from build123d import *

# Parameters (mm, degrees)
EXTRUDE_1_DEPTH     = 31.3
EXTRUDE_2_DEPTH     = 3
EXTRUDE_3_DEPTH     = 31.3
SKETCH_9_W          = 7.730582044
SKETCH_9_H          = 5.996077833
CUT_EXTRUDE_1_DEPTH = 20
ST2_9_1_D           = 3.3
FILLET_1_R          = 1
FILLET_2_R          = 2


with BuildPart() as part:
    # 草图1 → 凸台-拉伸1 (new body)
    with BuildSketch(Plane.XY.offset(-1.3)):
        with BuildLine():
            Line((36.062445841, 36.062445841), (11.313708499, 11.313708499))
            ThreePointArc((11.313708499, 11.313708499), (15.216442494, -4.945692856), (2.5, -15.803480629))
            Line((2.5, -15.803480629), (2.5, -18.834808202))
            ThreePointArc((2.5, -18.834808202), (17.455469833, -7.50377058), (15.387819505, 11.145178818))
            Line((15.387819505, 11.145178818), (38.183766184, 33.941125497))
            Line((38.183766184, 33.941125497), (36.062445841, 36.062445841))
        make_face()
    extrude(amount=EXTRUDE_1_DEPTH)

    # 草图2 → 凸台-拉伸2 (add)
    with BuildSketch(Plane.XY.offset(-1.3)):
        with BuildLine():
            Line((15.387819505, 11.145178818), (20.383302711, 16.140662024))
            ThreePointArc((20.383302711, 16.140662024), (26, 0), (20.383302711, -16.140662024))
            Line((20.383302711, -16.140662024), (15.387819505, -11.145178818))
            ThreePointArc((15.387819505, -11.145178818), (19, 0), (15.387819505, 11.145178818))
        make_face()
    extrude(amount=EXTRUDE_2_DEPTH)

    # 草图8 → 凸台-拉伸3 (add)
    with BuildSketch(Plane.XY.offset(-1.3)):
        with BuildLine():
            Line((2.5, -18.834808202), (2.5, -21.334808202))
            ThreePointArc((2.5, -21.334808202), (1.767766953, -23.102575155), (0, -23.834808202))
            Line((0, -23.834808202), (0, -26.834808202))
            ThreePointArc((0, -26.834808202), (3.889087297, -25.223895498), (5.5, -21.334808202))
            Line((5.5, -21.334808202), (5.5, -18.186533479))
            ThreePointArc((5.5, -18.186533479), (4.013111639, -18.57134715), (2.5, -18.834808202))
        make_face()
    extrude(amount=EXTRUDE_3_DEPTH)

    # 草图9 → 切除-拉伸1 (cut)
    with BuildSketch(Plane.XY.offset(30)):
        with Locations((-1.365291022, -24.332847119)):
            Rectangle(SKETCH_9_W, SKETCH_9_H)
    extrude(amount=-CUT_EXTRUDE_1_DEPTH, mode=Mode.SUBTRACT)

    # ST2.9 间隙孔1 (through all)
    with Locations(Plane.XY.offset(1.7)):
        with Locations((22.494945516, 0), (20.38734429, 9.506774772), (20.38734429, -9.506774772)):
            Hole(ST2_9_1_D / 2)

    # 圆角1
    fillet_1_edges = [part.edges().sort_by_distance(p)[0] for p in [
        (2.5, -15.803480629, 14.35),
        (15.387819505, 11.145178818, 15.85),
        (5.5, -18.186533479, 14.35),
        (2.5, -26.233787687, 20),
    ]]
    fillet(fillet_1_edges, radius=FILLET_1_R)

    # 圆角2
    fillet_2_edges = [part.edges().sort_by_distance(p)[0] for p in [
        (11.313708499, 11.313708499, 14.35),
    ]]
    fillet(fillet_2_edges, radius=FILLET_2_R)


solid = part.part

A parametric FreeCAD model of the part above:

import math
import FreeCAD as App
import Part
import Sketcher

V = App.Vector
Q = App.Units.Quantity


def edges_at(feature, points):
    """Names of the edges that pass closest to the given points."""
    edges = feature.Shape.Edges
    near = lambda p: min(range(len(edges)), key=lambda i: edges[i].distToShape(Part.Vertex(*p))[0])
    return sorted({f"Edge{near(p) + 1}" for p in points})


def add_polygon(sketch, points):
    """Adds a closed chain of lines whose ends are joined by coincident constraints."""
    first, n = sketch.GeometryCount, len(points)
    for a, b in zip(points, points[1:] + points[:1]):
        sketch.addGeometry(Part.LineSegment(App.Vector(*a, 0), App.Vector(*b, 0)), False)
    for i in range(n):
        sketch.addConstraint(Sketcher.Constraint("Coincident", first + i, 2, first + (i + 1) % n, 1))

doc = App.newDocument("Part")
body = doc.addObject("PartDesign::Body", "Body")

# Sketch on XY plane
sketch1 = doc.addObject("Sketcher::SketchObject", "Sketch")
body.addObject(sketch1)
sketch1.AttachmentSupport = (doc.XY_Plane, [""])
sketch1.MapMode = "FlatFace"
sketch1.AttachmentOffset = App.Placement(V(0, 0, -1.3), App.Rotation())
sketch1.addGeometry([
    Part.LineSegment(V(36.062446, 36.062446, 0), V(11.313708, 11.313708, 0)),  # 0
    Part.ArcOfCircle(Part.Circle(V(0, 0, 0), V(0, 0, 1), 16), math.radians(-81.010701), math.radians(45)),  # 1
    Part.LineSegment(V(2.5, -15.803481, 0), V(2.5, -18.834808, 0)),  # 2
    Part.ArcOfCircle(Part.Circle(V(0, 0, 0), V(0, 0, 1), 19), math.radians(-82.439157), math.radians(35.91528)),  # 3
    Part.LineSegment(V(15.38782, 11.145179, 0), V(38.183766, 33.941125, 0)),  # 4
    Part.LineSegment(V(38.183766, 33.941125, 0), V(36.062446, 36.062446, 0)),  # 5
], False)
sketch1.addConstraint([
    Sketcher.Constraint("Coincident", 0, 2, 1, 2),
    Sketcher.Constraint("Coincident", 1, 1, 2, 1),
    Sketcher.Constraint("Coincident", 2, 2, 3, 1),
    Sketcher.Constraint("Coincident", 3, 2, 4, 1),
    Sketcher.Constraint("Coincident", 4, 2, 5, 1),
    Sketcher.Constraint("Coincident", 5, 2, 0, 1),
    Sketcher.Constraint("Vertical", 2),
    Sketcher.Constraint("Coincident", 1, 3, -1, 1),
    Sketcher.Constraint("Coincident", 3, 3, -1, 1),
    Sketcher.Constraint("Parallel", 0, 4),
    Sketcher.Constraint("Perpendicular", 4, 5),
    Sketcher.Constraint("Radius", 1, Q("16 mm")),
    Sketcher.Constraint("Radius", 3, Q("19 mm")),
    Sketcher.Constraint("Angle", 0, Q("-135 deg")),
    Sketcher.Constraint("Distance", 0, Q("35 mm")),
    Sketcher.Constraint("Distance", 5, Q("3 mm")),
    Sketcher.Constraint("DistanceX", -1, 1, 1, 1, Q("2.5 mm")),
    Sketcher.Constraint("DistanceX", -1, 1, 0, 2, Q("11.313708 mm")),
])
pad1 = doc.addObject("PartDesign::Pad", "Pad")
body.addObject(pad1)
pad1.Profile = sketch1
pad1.Length = 31.3

# Sketch on XY plane
sketch2 = doc.addObject("Sketcher::SketchObject", "Sketch001")
body.addObject(sketch2)
sketch2.AttachmentSupport = (doc.XY_Plane, [""])
sketch2.MapMode = "FlatFace"
sketch2.AttachmentOffset = App.Placement(V(0, 0, -1.3), App.Rotation())
sketch2.addGeometry([
    Part.LineSegment(V(20.383303, 16.140662, 0), V(15.38782, 11.145179, 0)),
    Part.ArcOfCircle(Part.Circle(V(0, 0, 0), V(0, 0, 1), 19), math.radians(-35.91528), math.radians(35.91528)),
    Part.LineSegment(V(15.38782, -11.145179, 0), V(20.383303, -16.140662, 0)),
    Part.ArcOfCircle(Part.Circle(V(0, 0, 0), V(0, 0, 1), 26), math.radians(-38.37419), math.radians(38.37419)),
], False)
sketch2.addConstraint([
    Sketcher.Constraint("Coincident", 0, 2, 1, 2),
    Sketcher.Constraint("Coincident", 1, 1, 2, 1),
    Sketcher.Constraint("Coincident", 2, 2, 3, 1),
    Sketcher.Constraint("Coincident", 3, 2, 0, 1),
    Sketcher.Constraint("Coincident", 1, 3, -1, 1),
    Sketcher.Constraint("Coincident", 3, 3, -1, 1),
    Sketcher.Constraint("Perpendicular", 0, 2),
    Sketcher.Constraint("Vertical", 0, 2, 1, 1),
    Sketcher.Constraint("Vertical", 2, 2, 3, 2),
    Sketcher.Constraint("Radius", 1, Q("19 mm")),
    Sketcher.Constraint("Radius", 3, Q("26 mm")),
    Sketcher.Constraint("Distance", 0, Q("7.06468 mm")),
])
pad2 = doc.addObject("PartDesign::Pad", "Pad001")
body.addObject(pad2)
pad2.Profile = sketch2
pad2.Length = 3

# Sketch on XY plane
sketch3 = doc.addObject("Sketcher::SketchObject", "Sketch002")
body.addObject(sketch3)
sketch3.AttachmentSupport = (doc.XY_Plane, [""])
sketch3.MapMode = "FlatFace"
sketch3.AttachmentOffset = App.Placement(V(0, 0, -1.3), App.Rotation())
sketch3.addGeometry([
    Part.LineSegment(V(2.5, -18.834808, 0), V(2.5, -21.334808, 0)),  # 0
    Part.ArcOfCircle(Part.Circle(V(0, -21.334808, 0), V(0, 0, 1), 2.5), math.radians(-90), math.radians(0)),  # 1
    Part.LineSegment(V(0, -23.834808, 0), V(0, -26.834808, 0)),  # 2
    Part.ArcOfCircle(Part.Circle(V(0, -21.334808, 0), V(0, 0, 1), 5.5), math.radians(-90), math.radians(0)),  # 3
    Part.LineSegment(V(5.5, -21.334808, 0), V(5.5, -18.186533, 0)),  # 4
    Part.ArcOfCircle(Part.Circle(V(0, 0, 0), V(0, 0, 1), 19), math.radians(-82.439157), math.radians(-73.173551)),  # 5
], False)
sketch3.addConstraint([
    Sketcher.Constraint("Tangent", 0, 2, 1, 2),
    Sketcher.Constraint("Coincident", 1, 1, 2, 1),
    Sketcher.Constraint("Coincident", 2, 2, 3, 1),
    Sketcher.Constraint("Tangent", 3, 2, 4, 1),
    Sketcher.Constraint("Coincident", 4, 2, 5, 2),
    Sketcher.Constraint("Coincident", 5, 1, 0, 1),
    Sketcher.Constraint("Vertical", 0),
    Sketcher.Constraint("Vertical", 2),
    Sketcher.Constraint("Vertical", 4),
    Sketcher.Constraint("Coincident", 5, 3, -1, 1),
    Sketcher.Constraint("Coincident", 3, 3, 1, 3),
    Sketcher.Constraint("PointOnObject", 1, 3, -2),
    Sketcher.Constraint("PointOnObject", 1, 1, -2),
    Sketcher.Constraint("Radius", 5, Q("19 mm")),
    Sketcher.Constraint("Radius", 1, Q("2.5 mm")),
    Sketcher.Constraint("Radius", 3, Q("5.5 mm")),
    Sketcher.Constraint("DistanceY", 0, 2, 0, 1, Q("2.5 mm")),
])
pad3 = doc.addObject("PartDesign::Pad", "Pad002")
body.addObject(pad3)
pad3.Profile = sketch3
pad3.Length = 31.3

# Sketch on XY plane
sketch4 = doc.addObject("Sketcher::SketchObject", "Sketch003")
body.addObject(sketch4)
sketch4.AttachmentSupport = (doc.XY_Plane, [""])
sketch4.MapMode = "FlatFace"
sketch4.AttachmentOffset = App.Placement(V(0, 0, 30), App.Rotation())
add_polygon(sketch4, [(-5.230582, -21.334808), (-5.230582, -27.330886), (2.5, -27.330886), (2.5, -21.334808)])  # lines 0-3
sketch4.addConstraint([
    Sketcher.Constraint("Vertical", 0),
    Sketcher.Constraint("Horizontal", 1),
    Sketcher.Constraint("Vertical", 2),
    Sketcher.Constraint("Horizontal", 3),
    Sketcher.Constraint("DistanceX", -1, 1, 1, 2, Q("2.5 mm")),
    Sketcher.Constraint("DistanceX", 1, 1, 1, 2, Q("7.730582 mm")),
    Sketcher.Constraint("DistanceY", 0, 2, 0, 1, Q("5.996078 mm")),
    Sketcher.Constraint("DistanceY", 2, 2, -1, 1, Q("21.334808 mm")),
])
pocket1 = doc.addObject("PartDesign::Pocket", "Pocket")
body.addObject(pocket1)
pocket1.Profile = sketch4
pocket1.Length = 20

# Sketch on XY plane
sketch5 = doc.addObject("Sketcher::SketchObject", "Sketch004")
body.addObject(sketch5)
sketch5.AttachmentSupport = (doc.XY_Plane, [""])
sketch5.MapMode = "FlatFace"
sketch5.AttachmentOffset = App.Placement(V(0, 0, 1.7), App.Rotation())
sketch5.addGeometry([
    Part.Circle(V(22.494946, 0, 0), V(0, 0, 1), 1.65),
    Part.Circle(V(20.387344, 9.506775, 0), V(0, 0, 1), 1.65),
    Part.Circle(V(20.387344, -9.506775, 0), V(0, 0, 1), 1.65),
], False)
sketch5.addConstraint([
    Sketcher.Constraint("Equal", 0, 1),
    Sketcher.Constraint("Equal", 1, 2),
    Sketcher.Constraint("Symmetric", 1, 3, 2, 3, -1),
    Sketcher.Constraint("PointOnObject", 0, 3, -1),
    Sketcher.Constraint("Diameter", 0, Q("3.3 mm")),
    Sketcher.Constraint("DistanceX", 1, 3, 0, 3, Q("2.107601 mm")),
    Sketcher.Constraint("DistanceY", 2, 3, 1, 3, Q("19.01355 mm")),
    Sketcher.Constraint("DistanceX", -1, 1, 0, 3, Q("22.494946 mm")),
])
doc.recompute()
hole = doc.addObject("PartDesign::Hole", "Hole")
body.addObject(hole)
hole.Profile = sketch5
hole.ThreadType = "None"
hole.Diameter = 3.3
hole.DepthType = "ThroughAll"
doc.recompute()

fillet = doc.addObject("PartDesign::Fillet", "Fillet")
body.addObject(fillet)
fillet.Base = (hole, edges_at(hole, [
    (2.5, -15.803, 14.35),
    (15.388, 11.145, 15.85),
    (5.5, -18.187, 14.35),
    (2.5, -26.234, 20),
]))
fillet.Radius = 1
doc.recompute()

fillet2 = doc.addObject("PartDesign::Fillet", "Fillet001")
body.addObject(fillet2)
fillet2.Base = (fillet, edges_at(fillet, [(11.314, 11.314, 14.35)]))
fillet2.Radius = 2

doc.recompute()
